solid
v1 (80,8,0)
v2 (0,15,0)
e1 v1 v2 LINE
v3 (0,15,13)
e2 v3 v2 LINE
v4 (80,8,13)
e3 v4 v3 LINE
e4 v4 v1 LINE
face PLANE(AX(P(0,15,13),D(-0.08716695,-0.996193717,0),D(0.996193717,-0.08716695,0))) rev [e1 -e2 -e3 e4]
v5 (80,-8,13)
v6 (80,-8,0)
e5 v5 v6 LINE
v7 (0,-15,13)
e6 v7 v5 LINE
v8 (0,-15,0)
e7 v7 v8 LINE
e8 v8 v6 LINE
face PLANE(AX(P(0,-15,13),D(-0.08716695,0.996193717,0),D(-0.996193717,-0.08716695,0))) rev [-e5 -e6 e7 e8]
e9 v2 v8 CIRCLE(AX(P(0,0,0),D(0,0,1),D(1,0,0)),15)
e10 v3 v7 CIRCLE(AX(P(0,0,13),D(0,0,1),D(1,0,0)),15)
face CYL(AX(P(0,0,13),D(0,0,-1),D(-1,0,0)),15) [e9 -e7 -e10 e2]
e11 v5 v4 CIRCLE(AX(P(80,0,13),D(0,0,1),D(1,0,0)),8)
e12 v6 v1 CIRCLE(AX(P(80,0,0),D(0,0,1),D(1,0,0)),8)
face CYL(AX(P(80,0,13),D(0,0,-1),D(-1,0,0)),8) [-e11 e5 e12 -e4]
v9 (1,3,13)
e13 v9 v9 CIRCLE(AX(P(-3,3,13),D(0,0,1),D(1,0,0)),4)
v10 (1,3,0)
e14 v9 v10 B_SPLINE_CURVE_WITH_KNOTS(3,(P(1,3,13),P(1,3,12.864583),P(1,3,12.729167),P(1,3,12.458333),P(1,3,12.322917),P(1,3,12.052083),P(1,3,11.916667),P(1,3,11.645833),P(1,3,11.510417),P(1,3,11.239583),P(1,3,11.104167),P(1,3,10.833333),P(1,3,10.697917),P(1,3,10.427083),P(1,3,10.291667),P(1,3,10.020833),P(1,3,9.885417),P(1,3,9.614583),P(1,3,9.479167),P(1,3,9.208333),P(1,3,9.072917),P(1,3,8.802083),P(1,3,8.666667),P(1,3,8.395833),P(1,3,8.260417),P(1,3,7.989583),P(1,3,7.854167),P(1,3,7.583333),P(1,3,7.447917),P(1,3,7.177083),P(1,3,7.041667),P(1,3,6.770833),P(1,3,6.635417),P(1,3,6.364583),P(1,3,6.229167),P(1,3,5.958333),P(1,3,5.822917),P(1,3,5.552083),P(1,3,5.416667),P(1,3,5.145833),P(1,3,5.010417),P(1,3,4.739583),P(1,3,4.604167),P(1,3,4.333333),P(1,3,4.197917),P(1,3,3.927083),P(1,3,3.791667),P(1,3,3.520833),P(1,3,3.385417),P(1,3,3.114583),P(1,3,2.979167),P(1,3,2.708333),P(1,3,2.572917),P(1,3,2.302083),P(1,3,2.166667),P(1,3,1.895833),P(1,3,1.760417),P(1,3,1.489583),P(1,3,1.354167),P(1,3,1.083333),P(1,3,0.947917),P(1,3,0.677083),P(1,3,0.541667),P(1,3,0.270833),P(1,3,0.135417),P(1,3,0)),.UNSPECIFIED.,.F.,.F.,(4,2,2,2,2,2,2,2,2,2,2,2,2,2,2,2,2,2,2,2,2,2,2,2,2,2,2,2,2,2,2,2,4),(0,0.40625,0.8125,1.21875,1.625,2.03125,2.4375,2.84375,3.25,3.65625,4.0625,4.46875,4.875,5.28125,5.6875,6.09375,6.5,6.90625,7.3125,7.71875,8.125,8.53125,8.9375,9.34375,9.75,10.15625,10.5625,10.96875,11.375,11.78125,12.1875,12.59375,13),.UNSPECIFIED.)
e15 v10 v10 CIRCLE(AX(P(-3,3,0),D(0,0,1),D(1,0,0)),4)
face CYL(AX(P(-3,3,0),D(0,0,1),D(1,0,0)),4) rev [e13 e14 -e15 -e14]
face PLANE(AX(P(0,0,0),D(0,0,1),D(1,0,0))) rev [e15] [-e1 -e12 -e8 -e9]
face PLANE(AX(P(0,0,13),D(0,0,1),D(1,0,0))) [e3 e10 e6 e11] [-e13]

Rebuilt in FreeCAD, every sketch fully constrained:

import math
import FreeCAD as App
import Part
import Sketcher
Q = App.Units.Quantity

doc = App.newDocument("Part")
body = doc.addObject("PartDesign::Body", "Body")

# Sketch on XY plane
sketch1 = body.newObject("Sketcher::SketchObject", "Sketch")
sketch1.AttachmentSupport = (doc.getObject("XY_Plane"), [""])
sketch1.MapMode = "FlatFace"
sketch1.addGeometry(Part.LineSegment(App.Vector(80, 8, 0), App.Vector(0, 15, 0)), False)
sketch1.addGeometry(Part.ArcOfCircle(Part.Circle(App.Vector(0, 0, 0), App.Vector(0, 0, 1), 15), math.radians(90), math.radians(270)), False)
sketch1.addGeometry(Part.LineSegment(App.Vector(0, -15, 0), App.Vector(80, -8, 0)), False)
sketch1.addGeometry(Part.ArcOfCircle(Part.Circle(App.Vector(80, 0, 0), App.Vector(0, 0, 1), 8), math.radians(-90), math.radians(90)), False)
sketch1.addConstraint(Sketcher.Constraint("Coincident", 0, 2, 1, 1))
sketch1.addConstraint(Sketcher.Constraint("Coincident", 1, 2, 2, 1))
sketch1.addConstraint(Sketcher.Constraint("Coincident", 2, 2, 3, 1))
sketch1.addConstraint(Sketcher.Constraint("Coincident", 3, 2, 0, 1))
sketch1.addConstraint(Sketcher.Constraint("Coincident", 1, 3, -1, 1))
sketch1.addConstraint(Sketcher.Constraint("Symmetric", 2, 2, 3, 2, -1))
sketch1.addConstraint(Sketcher.Constraint("PointOnObject", 0, 2, -2))
sketch1.addConstraint(Sketcher.Constraint("PointOnObject", 1, 2, -2))
sketch1.addConstraint(Sketcher.Constraint("Vertical", 3, 3, 2, 2))
sketch1.addConstraint(Sketcher.Constraint("Radius", 1, Q("15 mm")))
sketch1.addConstraint(Sketcher.Constraint("Radius", 3, Q("8 mm")))
sketch1.addConstraint(Sketcher.Constraint("DistanceX", -1, 1, 3, 3, Q("80 mm")))
pad1 = body.newObject("PartDesign::Pad", "Pad")
pad1.Profile = sketch1
pad1.Length = 13

# Sketch on XY plane
sketch2 = body.newObject("Sketcher::SketchObject", "Sketch001")
sketch2.AttachmentSupport = (doc.getObject("XY_Plane"), [""])
sketch2.MapMode = "FlatFace"
sketch2.AttachmentOffset = App.Placement(App.Vector(0, 0, 13), App.Rotation())
sketch2.addGeometry(Part.Circle(App.Vector(-3, 3, 0), App.Vector(0, 0, 1), 4), False)
sketch2.addConstraint(Sketcher.Constraint("Diameter", 0, Q("8 mm")))
sketch2.addConstraint(Sketcher.Constraint("DistanceX", 0, 3, -1, 1, Q("3 mm")))
sketch2.addConstraint(Sketcher.Constraint("DistanceY", -1, 1, 0, 3, Q("3 mm")))
pocket1 = body.newObject("PartDesign::Pocket", "Pocket")
pocket1.Profile = sketch2
pocket1.Type = "ThroughAll"
pocket1.Midplane = True

doc.recompute()
